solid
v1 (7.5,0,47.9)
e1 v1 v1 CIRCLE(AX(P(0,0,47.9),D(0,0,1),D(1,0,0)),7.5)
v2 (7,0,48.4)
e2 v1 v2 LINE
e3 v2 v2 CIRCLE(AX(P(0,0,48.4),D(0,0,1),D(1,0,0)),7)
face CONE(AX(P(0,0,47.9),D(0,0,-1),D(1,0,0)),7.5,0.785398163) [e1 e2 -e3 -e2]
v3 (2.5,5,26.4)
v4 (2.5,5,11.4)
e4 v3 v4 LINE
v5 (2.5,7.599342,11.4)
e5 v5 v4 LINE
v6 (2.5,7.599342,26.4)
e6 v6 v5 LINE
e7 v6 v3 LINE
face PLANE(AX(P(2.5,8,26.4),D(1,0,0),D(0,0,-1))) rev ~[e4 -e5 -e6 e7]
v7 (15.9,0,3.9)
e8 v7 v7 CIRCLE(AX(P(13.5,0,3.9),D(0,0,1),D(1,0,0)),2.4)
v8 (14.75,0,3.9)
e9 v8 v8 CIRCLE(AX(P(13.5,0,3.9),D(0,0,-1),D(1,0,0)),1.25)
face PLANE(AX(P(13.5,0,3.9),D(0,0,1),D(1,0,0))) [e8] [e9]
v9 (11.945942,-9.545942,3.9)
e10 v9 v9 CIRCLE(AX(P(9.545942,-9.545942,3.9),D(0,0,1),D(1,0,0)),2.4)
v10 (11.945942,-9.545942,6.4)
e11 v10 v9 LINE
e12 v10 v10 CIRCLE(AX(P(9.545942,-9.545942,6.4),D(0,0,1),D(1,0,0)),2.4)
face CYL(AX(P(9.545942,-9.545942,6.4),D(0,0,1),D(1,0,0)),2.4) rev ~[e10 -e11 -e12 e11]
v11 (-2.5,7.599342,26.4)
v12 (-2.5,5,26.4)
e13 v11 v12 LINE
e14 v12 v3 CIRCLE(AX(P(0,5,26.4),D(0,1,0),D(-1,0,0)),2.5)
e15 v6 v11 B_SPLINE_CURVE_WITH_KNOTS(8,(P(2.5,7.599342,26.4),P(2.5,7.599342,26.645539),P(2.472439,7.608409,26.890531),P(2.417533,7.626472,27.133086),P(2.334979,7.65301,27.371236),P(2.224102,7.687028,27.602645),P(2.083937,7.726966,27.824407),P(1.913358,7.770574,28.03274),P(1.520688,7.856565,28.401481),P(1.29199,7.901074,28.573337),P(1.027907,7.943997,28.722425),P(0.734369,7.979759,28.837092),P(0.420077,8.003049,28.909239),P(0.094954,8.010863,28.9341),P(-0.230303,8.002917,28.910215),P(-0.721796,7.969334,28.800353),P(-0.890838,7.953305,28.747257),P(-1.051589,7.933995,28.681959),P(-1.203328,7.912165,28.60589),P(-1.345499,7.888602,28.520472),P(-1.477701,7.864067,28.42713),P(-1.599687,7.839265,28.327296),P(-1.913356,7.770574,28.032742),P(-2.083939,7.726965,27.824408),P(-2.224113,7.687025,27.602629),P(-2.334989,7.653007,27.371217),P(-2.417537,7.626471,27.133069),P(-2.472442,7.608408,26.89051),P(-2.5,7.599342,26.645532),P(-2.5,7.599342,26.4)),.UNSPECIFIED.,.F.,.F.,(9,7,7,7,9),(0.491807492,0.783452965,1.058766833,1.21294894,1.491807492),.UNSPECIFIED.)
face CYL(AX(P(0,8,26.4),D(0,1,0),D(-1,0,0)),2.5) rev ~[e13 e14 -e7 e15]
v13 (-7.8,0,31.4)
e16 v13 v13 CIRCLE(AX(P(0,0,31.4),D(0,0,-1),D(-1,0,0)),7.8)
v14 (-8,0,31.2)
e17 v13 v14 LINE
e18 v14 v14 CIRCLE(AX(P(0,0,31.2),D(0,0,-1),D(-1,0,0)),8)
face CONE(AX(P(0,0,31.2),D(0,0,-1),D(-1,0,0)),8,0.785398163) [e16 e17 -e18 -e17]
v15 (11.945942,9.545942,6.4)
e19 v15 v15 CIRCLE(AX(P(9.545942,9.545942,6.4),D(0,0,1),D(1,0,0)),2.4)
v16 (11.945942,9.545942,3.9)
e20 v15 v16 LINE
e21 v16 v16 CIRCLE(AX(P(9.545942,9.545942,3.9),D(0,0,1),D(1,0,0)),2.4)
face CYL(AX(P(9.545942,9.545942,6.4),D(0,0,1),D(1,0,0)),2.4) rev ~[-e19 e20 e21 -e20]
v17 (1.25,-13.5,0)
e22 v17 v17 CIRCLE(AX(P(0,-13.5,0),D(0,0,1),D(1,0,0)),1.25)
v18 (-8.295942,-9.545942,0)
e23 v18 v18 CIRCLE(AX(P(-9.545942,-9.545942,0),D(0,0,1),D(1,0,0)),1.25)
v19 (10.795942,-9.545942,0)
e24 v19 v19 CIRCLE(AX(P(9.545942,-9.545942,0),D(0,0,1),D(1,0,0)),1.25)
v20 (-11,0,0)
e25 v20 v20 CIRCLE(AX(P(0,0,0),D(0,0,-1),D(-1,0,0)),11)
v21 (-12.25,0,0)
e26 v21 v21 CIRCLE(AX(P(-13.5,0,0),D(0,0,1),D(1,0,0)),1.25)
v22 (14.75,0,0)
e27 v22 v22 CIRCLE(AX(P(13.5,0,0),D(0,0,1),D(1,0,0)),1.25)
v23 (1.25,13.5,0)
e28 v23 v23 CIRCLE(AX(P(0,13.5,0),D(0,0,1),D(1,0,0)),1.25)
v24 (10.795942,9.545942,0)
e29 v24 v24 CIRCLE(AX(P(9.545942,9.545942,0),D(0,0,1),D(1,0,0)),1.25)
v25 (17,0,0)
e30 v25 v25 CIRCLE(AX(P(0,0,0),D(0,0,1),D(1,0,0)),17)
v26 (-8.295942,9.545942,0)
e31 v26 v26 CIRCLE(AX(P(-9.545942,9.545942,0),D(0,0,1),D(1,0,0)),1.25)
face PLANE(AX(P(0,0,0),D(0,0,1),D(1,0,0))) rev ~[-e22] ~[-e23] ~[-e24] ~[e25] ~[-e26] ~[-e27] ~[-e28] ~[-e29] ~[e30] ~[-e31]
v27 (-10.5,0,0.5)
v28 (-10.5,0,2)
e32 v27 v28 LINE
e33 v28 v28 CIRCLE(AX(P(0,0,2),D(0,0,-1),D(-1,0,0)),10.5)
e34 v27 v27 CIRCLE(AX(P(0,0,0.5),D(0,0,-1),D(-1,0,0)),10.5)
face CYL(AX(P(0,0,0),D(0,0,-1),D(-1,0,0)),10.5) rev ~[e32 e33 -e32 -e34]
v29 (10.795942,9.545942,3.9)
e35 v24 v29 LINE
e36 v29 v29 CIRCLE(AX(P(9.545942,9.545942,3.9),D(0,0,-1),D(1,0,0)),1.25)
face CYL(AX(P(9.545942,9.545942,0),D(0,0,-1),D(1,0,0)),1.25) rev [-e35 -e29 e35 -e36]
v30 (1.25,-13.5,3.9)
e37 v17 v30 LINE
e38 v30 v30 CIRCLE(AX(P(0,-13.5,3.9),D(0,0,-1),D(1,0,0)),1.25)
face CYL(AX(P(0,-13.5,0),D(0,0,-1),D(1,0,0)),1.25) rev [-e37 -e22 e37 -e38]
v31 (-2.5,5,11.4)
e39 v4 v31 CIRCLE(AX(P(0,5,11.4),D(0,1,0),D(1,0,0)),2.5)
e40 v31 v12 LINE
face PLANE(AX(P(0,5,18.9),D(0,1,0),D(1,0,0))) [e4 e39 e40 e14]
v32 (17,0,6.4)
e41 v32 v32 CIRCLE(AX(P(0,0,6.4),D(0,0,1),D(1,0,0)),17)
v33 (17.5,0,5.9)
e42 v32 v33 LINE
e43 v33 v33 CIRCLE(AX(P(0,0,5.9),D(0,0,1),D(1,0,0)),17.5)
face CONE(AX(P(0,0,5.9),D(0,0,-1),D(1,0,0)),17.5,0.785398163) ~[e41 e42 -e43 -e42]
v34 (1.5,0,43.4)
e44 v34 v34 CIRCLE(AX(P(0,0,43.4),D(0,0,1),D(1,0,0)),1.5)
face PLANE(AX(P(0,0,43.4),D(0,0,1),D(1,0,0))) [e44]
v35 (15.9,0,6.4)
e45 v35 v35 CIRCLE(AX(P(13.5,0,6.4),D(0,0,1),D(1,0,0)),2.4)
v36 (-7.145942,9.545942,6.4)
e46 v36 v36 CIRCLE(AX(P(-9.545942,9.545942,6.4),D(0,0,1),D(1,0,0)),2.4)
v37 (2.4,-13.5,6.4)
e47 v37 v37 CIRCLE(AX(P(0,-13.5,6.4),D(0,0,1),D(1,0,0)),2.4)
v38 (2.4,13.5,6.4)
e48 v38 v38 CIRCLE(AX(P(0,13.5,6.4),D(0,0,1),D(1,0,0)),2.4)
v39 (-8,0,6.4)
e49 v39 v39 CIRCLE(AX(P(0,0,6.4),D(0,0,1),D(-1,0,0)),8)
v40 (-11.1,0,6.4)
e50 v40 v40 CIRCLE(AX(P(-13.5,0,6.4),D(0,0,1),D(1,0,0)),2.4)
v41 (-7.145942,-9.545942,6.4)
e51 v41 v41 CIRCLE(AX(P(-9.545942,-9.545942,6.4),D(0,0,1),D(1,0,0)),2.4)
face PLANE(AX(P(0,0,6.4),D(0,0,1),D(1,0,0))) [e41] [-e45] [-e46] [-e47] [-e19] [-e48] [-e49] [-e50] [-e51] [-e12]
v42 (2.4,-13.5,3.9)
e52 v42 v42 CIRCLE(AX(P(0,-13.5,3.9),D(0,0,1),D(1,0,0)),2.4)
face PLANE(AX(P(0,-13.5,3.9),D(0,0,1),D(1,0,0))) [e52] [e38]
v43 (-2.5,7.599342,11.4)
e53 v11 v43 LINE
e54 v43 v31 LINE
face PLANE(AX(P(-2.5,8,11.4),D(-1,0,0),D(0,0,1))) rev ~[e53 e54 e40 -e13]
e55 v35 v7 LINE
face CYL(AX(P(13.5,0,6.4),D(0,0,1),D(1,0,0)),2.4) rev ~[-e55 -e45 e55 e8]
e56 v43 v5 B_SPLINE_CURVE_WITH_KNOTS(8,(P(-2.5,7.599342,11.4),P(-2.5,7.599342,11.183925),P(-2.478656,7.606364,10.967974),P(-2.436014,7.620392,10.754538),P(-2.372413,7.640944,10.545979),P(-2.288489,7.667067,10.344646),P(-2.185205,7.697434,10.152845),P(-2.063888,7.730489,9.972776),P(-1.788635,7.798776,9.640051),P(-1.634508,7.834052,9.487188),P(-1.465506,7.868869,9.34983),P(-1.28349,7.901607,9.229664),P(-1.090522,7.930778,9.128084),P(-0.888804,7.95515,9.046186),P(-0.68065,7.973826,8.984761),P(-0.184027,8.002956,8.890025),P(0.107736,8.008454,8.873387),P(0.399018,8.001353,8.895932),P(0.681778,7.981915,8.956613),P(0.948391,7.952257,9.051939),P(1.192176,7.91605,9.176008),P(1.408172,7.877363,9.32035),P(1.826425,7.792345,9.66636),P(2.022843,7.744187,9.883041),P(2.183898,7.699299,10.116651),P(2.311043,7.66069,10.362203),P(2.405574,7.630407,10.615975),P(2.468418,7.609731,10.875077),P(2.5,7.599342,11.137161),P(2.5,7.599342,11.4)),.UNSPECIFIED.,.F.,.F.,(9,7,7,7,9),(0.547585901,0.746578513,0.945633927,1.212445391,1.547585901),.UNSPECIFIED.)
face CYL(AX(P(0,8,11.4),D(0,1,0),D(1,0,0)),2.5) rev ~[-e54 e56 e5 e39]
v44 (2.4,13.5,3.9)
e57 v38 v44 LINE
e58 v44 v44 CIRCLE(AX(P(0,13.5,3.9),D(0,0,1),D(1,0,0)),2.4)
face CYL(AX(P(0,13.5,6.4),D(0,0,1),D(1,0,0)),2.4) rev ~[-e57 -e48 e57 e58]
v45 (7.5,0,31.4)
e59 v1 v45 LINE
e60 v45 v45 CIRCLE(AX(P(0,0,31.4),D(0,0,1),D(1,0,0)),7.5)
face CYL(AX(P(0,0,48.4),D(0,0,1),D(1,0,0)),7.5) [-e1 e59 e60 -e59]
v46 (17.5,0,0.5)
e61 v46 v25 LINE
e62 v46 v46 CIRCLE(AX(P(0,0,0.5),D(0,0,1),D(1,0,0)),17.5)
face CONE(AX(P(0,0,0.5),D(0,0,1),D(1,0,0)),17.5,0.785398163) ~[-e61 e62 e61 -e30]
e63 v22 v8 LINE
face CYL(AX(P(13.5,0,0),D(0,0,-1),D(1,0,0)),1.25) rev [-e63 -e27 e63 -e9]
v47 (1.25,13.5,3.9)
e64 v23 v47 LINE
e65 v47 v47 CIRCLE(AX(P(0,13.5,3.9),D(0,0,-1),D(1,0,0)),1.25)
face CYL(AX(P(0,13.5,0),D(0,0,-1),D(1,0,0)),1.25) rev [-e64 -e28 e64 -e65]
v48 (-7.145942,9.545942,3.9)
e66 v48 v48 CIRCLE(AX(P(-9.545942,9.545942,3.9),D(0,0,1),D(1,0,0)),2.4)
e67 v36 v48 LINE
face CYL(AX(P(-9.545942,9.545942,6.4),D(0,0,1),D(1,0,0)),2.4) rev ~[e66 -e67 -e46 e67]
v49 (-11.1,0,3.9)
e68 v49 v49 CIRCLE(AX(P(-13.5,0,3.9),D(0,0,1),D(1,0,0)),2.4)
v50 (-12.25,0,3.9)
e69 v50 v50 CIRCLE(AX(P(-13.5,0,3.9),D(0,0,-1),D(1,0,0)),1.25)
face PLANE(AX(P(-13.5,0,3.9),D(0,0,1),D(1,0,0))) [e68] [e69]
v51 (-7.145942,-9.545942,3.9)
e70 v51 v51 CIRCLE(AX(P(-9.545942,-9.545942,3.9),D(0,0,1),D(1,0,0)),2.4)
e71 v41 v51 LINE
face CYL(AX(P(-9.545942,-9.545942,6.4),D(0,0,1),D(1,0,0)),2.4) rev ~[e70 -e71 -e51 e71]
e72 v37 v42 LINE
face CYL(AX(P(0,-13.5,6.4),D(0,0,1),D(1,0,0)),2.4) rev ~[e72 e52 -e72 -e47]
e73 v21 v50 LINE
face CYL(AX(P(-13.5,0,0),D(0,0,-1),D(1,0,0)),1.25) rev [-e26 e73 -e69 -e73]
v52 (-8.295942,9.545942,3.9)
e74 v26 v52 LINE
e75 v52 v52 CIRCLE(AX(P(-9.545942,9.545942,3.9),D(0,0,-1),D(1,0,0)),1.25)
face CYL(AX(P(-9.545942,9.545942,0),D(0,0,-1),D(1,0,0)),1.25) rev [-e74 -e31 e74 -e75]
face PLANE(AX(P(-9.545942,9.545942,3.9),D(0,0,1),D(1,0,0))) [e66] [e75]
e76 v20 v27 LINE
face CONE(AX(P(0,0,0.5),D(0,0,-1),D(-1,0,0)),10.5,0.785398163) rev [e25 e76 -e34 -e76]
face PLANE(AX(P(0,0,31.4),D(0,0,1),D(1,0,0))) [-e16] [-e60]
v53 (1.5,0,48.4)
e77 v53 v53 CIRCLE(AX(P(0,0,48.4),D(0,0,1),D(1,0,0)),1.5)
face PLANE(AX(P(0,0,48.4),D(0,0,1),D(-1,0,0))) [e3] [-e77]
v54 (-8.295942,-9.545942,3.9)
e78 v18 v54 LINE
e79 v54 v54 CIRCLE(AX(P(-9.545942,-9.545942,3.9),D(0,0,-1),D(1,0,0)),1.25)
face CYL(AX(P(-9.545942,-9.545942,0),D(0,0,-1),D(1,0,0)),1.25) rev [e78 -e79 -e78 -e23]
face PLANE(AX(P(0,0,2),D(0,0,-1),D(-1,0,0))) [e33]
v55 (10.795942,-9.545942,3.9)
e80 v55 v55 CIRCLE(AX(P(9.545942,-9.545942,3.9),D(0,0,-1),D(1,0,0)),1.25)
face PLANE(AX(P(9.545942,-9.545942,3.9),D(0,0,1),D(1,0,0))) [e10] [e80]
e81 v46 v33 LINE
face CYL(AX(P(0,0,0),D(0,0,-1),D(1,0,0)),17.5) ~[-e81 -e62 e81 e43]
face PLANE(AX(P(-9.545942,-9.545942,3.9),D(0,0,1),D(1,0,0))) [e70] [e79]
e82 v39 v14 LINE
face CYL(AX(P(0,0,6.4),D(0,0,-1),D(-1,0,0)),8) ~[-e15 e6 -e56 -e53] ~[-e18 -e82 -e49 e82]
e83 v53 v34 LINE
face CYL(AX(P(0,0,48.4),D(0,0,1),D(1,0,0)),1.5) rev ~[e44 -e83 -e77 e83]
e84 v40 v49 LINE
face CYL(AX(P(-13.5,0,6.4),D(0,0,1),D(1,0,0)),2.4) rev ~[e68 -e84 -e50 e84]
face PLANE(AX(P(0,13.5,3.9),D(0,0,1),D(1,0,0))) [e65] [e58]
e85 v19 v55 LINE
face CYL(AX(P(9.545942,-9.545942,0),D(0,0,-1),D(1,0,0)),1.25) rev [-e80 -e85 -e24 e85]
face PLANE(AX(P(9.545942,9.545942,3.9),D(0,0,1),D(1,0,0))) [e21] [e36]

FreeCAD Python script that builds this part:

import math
import FreeCAD as App
import Part
import Sketcher
Q = App.Units.Quantity


def edges_at(feature, points):
    """Names of the edges that pass closest to the given points."""
    edges = feature.Shape.Edges
    near = lambda p: min(range(len(edges)), key=lambda i: edges[i].distToShape(Part.Vertex(*p))[0])
    return sorted({f"Edge{near(p) + 1}" for p in points})


def add_polygon(sketch, points):
    """Adds a closed chain of lines whose ends are joined by coincident constraints."""
    first, n = sketch.GeometryCount, len(points)
    for a, b in zip(points, points[1:] + points[:1]):
        sketch.addGeometry(Part.LineSegment(App.Vector(*a, 0), App.Vector(*b, 0)), False)
    for i in range(n):
        sketch.addConstraint(Sketcher.Constraint("Coincident", first + i, 2, first + (i + 1) % n, 1))

doc = App.newDocument("Part")
params = doc.addObject("Spreadsheet::Sheet", "Params")
for row, (alias, value) in enumerate([
    ("sketch1_diameter", "35 mm"),
    ("sketch1_diameter2", "2.5 mm"),
    ("pad1_length", "6.4 mm"),
    ("sketch2_diameter", "16 mm"),
    ("pad2_length", "42 mm"),
    ("sketch3_radius", "2.5 mm"),
    ("sketch3_height", "15 mm"),
    ("pocket1_length", "3 mm"),
    ("sketch4_diameter", "3 mm"),
    ("pocket2_length", "5 mm"),
    ("sketch5_diameter", "15 mm"),
    ("pocket3_length", "17 mm"),
    ("chamfer_size", "0.5 mm"),
    ("chamfer2_size", "0.2 mm"),
    ("sketch6_diameter", "4.8 mm"),
    ("pocket4_length", "2.5 mm"),
    ("chamfer3_size", "0.5 mm"),
    ("sketch7_diameter", "21 mm"),
    ("pocket5_length", "2 mm"),
    ("chamfer4_size", "0.5 mm"),
], start=1):
    params.set(f"A{row}", alias)
    params.set(f"B{row}", "=" + value)
    params.setAlias(f"B{row}", alias)

body = doc.addObject("PartDesign::Body", "Body")

# Sketch on XY plane
sketch1 = body.newObject("Sketcher::SketchObject", "Sketch")
sketch1.AttachmentSupport = (doc.getObject("XY_Plane"), [""])
sketch1.MapMode = "FlatFace"
sketch1.addGeometry(Part.Circle(App.Vector(0, 0, 0), App.Vector(0, 0, 1), 17.5), False)
sketch1.addGeometry(Part.Circle(App.Vector(-9.545942, -9.545942, 0), App.Vector(0, 0, 1), 1.25), False)
sketch1.addGeometry(Part.Circle(App.Vector(0, -13.5, 0), App.Vector(0, 0, 1), 1.25), False)
sketch1.addGeometry(Part.Circle(App.Vector(9.545942, -9.545942, 0), App.Vector(0, 0, 1), 1.25), False)
sketch1.addGeometry(Part.Circle(App.Vector(-13.5, 0, 0), App.Vector(0, 0, 1), 1.25), False)
sketch1.addGeometry(Part.Circle(App.Vector(-9.545942, 9.545942, 0), App.Vector(0, 0, 1), 1.25), False)
sketch1.addGeometry(Part.Circle(App.Vector(13.5, 0, 0), App.Vector(0, 0, 1), 1.25), False)
sketch1.addGeometry(Part.Circle(App.Vector(0, 13.5, 0), App.Vector(0, 0, 1), 1.25), False)
sketch1.addGeometry(Part.Circle(App.Vector(9.545942, 9.545942, 0), App.Vector(0, 0, 1), 1.25), False)
sketch1.addConstraint(Sketcher.Constraint("Coincident", 0, 3, -1, 1))
sketch1.addConstraint(Sketcher.Constraint("Equal", 1, 2))
sketch1.addConstraint(Sketcher.Constraint("Equal", 2, 3))
sketch1.addConstraint(Sketcher.Constraint("Equal", 3, 4))
sketch1.addConstraint(Sketcher.Constraint("Equal", 4, 5))
sketch1.addConstraint(Sketcher.Constraint("Equal", 5, 6))
sketch1.addConstraint(Sketcher.Constraint("Equal", 6, 7))
sketch1.addConstraint(Sketcher.Constraint("Equal", 7, 8))
sketch1.addConstraint(Sketcher.Constraint("Symmetric", 3, 3, 5, 3, -1, 1))
sketch1.addConstraint(Sketcher.Constraint("Symmetric", 4, 3, 6, 3, -1, 1))
sketch1.addConstraint(Sketcher.Constraint("Symmetric", 2, 3, 7, 3, -1, 1))
sketch1.addConstraint(Sketcher.Constraint("Symmetric", 1, 3, 8, 3, -1, 1))
sketch1.addConstraint(Sketcher.Constraint("Symmetric", 1, 3, 3, 3, -2))
sketch1.addConstraint(Sketcher.Constraint("PointOnObject", 2, 3, -2))
sketch1.addConstraint(Sketcher.Constraint("PointOnObject", 4, 3, -1))
sketch1.addConstraint(Sketcher.Constraint("Diameter", 0, Q("35 mm")))
sketch1.addConstraint(Sketcher.Constraint("Diameter", 1, Q("2.5 mm")))
sketch1.addConstraint(Sketcher.Constraint("DistanceY", 2, 3, -1, 1, Q("13.5 mm")))
sketch1.addConstraint(Sketcher.Constraint("DistanceX", 4, 3, -1, 1, Q("13.5 mm")))
sketch1.addConstraint(Sketcher.Constraint("DistanceX", 1, 3, -1, 1, Q("9.545942 mm")))
sketch1.addConstraint(Sketcher.Constraint("DistanceY", 1, 3, -1, 1, Q("9.545942 mm")))
sketch1.setExpression("Constraints[15]", "Params.sketch1_diameter")
sketch1.setExpression("Constraints[16]", "Params.sketch1_diameter2")
pad1 = body.newObject("PartDesign::Pad", "Pad")
pad1.Profile = sketch1
pad1.setExpression("Length", "Params.pad1_length")

# Sketch on XY plane
sketch2 = body.newObject("Sketcher::SketchObject", "Sketch001")
sketch2.AttachmentSupport = (doc.getObject("XY_Plane"), [""])
sketch2.MapMode = "FlatFace"
sketch2.AttachmentOffset = App.Placement(App.Vector(0, 0, 6.4), App.Rotation())
sketch2.addGeometry(Part.Circle(App.Vector(0, 0, 0), App.Vector(0, 0, 1), 8), False)
sketch2.addConstraint(Sketcher.Constraint("Coincident", 0, 3, -1, 1))
sketch2.addConstraint(Sketcher.Constraint("Diameter", 0, Q("16 mm")))
sketch2.setExpression("Constraints[1]", "Params.sketch2_diameter")
pad2 = body.newObject("PartDesign::Pad", "Pad001")
pad2.Profile = sketch2
pad2.setExpression("Length", "Params.pad2_length")

# Sketch on XZ plane
sketch3 = body.newObject("Sketcher::SketchObject", "Sketch002")
sketch3.AttachmentSupport = (doc.getObject("XZ_Plane"), [""])
sketch3.MapMode = "FlatFace"
sketch3.AttachmentOffset = App.Placement(App.Vector(0, 0, -8), App.Rotation())
sketch3.addGeometry(Part.LineSegment(App.Vector(-2.5, 11.4, 0), App.Vector(-2.5, 26.4, 0)), False)
sketch3.addGeometry(Part.ArcOfCircle(Part.Circle(App.Vector(0, 26.4, 0), App.Vector(0, 0, 1), 2.5), math.radians(0), math.radians(180)), False)
sketch3.addGeometry(Part.LineSegment(App.Vector(2.5, 26.4, 0), App.Vector(2.5, 11.4, 0)), False)
sketch3.addGeometry(Part.ArcOfCircle(Part.Circle(App.Vector(0, 11.4, 0), App.Vector(0, 0, 1), 2.5), math.radians(180), math.radians(360)), False)
sketch3.addConstraint(Sketcher.Constraint("Tangent", 0, 2, 1, 2))
sketch3.addConstraint(Sketcher.Constraint("Tangent", 1, 1, 2, 1))
sketch3.addConstraint(Sketcher.Constraint("Tangent", 2, 2, 3, 2))
sketch3.addConstraint(Sketcher.Constraint("Tangent", 3, 1, 0, 1))
sketch3.addConstraint(Sketcher.Constraint("Vertical", 0))
sketch3.addConstraint(Sketcher.Constraint("Vertical", 2))
sketch3.addConstraint(Sketcher.Constraint("PointOnObject", 1, 3, -2))
sketch3.addConstraint(Sketcher.Constraint("Radius", 1, Q("2.5 mm")))
sketch3.addConstraint(Sketcher.Constraint("DistanceY", 0, 1, 0, 2, Q("15 mm")))
sketch3.addConstraint(Sketcher.Constraint("DistanceY", -1, 1, 1, 3, Q("26.4 mm")))
sketch3.setExpression("Constraints[7]", "Params.sketch3_radius")
sketch3.setExpression("Constraints[8]", "Params.sketch3_height")
pocket1 = body.newObject("PartDesign::Pocket", "Pocket")
pocket1.Profile = sketch3
pocket1.setExpression("Length", "Params.pocket1_length")
pocket1.Reversed = True

# Sketch on XY plane
sketch4 = body.newObject("Sketcher::SketchObject", "Sketch003")
sketch4.AttachmentSupport = (doc.getObject("XY_Plane"), [""])
sketch4.MapMode = "FlatFace"
sketch4.AttachmentOffset = App.Placement(App.Vector(0, 0, 48.4), App.Rotation())
sketch4.addGeometry(Part.Circle(App.Vector(0, 0, 0), App.Vector(0, 0, 1), 1.5), False)
sketch4.addConstraint(Sketcher.Constraint("Coincident", 0, 3, -1, 1))
sketch4.addConstraint(Sketcher.Constraint("Diameter", 0, Q("3 mm")))
sketch4.setExpression("Constraints[1]", "Params.sketch4_diameter")
pocket2 = body.newObject("PartDesign::Pocket", "Pocket001")
pocket2.Profile = sketch4
pocket2.setExpression("Length", "Params.pocket2_length")

# Sketch on XY plane
sketch5 = body.newObject("Sketcher::SketchObject", "Sketch004")
sketch5.AttachmentSupport = (doc.getObject("XY_Plane"), [""])
sketch5.MapMode = "FlatFace"
sketch5.AttachmentOffset = App.Placement(App.Vector(0, 0, 48.4), App.Rotation())
add_polygon(sketch5, [(-25.423, 25.423), (-25.423, -25.423), (25.423, -25.423), (25.423, 25.423)])  # lines 0-3
sketch5.addGeometry(Part.Circle(App.Vector(0, 0, 0), App.Vector(0, 0, 1), 7.5), False)  # 4
sketch5.addConstraint(Sketcher.Constraint("Vertical", 0))
sketch5.addConstraint(Sketcher.Constraint("Horizontal", 1))
sketch5.addConstraint(Sketcher.Constraint("Vertical", 2))
sketch5.addConstraint(Sketcher.Constraint("Horizontal", 3))
sketch5.addConstraint(Sketcher.Constraint("Coincident", 4, 3, -1, 1))
sketch5.addConstraint(Sketcher.Constraint("Symmetric", 0, 2, 2, 2, -1, 1))
sketch5.addConstraint(Sketcher.Constraint("Equal", 3, 0))
sketch5.addConstraint(Sketcher.Constraint("Diameter", 4, Q("15 mm")))
sketch5.addConstraint(Sketcher.Constraint("DistanceX", 1, 1, 1, 2, Q("50.846 mm")))
sketch5.setExpression("Constraints[11]", "Params.sketch5_diameter")
pocket3 = body.newObject("PartDesign::Pocket", "Pocket002")
pocket3.Profile = sketch5
pocket3.setExpression("Length", "Params.pocket3_length")
doc.recompute()

chamfer = body.newObject("PartDesign::Chamfer", "Chamfer")
chamfer.Base = (pocket3, edges_at(pocket3, [(-7.5, 0, 48.4)]))
chamfer.setExpression("Size", "Params.chamfer_size")
doc.recompute()

chamfer2 = body.newObject("PartDesign::Chamfer", "Chamfer001")
chamfer2.Base = (chamfer, edges_at(chamfer, [(8, 0, 31.4)]))
chamfer2.setExpression("Size", "Params.chamfer2_size")

# Sketch on XY plane
sketch6 = body.newObject("Sketcher::SketchObject", "Sketch005")
sketch6.AttachmentSupport = (doc.getObject("XY_Plane"), [""])
sketch6.MapMode = "FlatFace"
sketch6.AttachmentOffset = App.Placement(App.Vector(0, 0, 6.4), App.Rotation())
sketch6.addGeometry(Part.Circle(App.Vector(-9.545942, 9.545942, 0), App.Vector(0, 0, 1), 2.4), False)
sketch6.addGeometry(Part.Circle(App.Vector(0, 13.5, 0), App.Vector(0, 0, 1), 2.4), False)
sketch6.addGeometry(Part.Circle(App.Vector(9.545942, 9.545942, 0), App.Vector(0, 0, 1), 2.4), False)
sketch6.addGeometry(Part.Circle(App.Vector(13.5, 0, 0), App.Vector(0, 0, 1), 2.4), False)
sketch6.addGeometry(Part.Circle(App.Vector(9.545942, -9.545942, 0), App.Vector(0, 0, 1), 2.4), False)
sketch6.addGeometry(Part.Circle(App.Vector(0, -13.5, 0), App.Vector(0, 0, 1), 2.4), False)
sketch6.addGeometry(Part.Circle(App.Vector(-9.545942, -9.545942, 0), App.Vector(0, 0, 1), 2.4), False)
sketch6.addGeometry(Part.Circle(App.Vector(-13.5, 0, 0), App.Vector(0, 0, 1), 2.4), False)
sketch6.addConstraint(Sketcher.Constraint("Equal", 0, 1))
sketch6.addConstraint(Sketcher.Constraint("Equal", 1, 2))
sketch6.addConstraint(Sketcher.Constraint("Equal", 2, 3))
sketch6.addConstraint(Sketcher.Constraint("Equal", 3, 4))
sketch6.addConstraint(Sketcher.Constraint("Equal", 4, 5))
sketch6.addConstraint(Sketcher.Constraint("Equal", 5, 6))
sketch6.addConstraint(Sketcher.Constraint("Equal", 6, 7))
sketch6.addConstraint(Sketcher.Constraint("Symmetric", 0, 3, 4, 3, -1, 1))
sketch6.addConstraint(Sketcher.Constraint("Symmetric", 1, 3, 5, 3, -1, 1))
sketch6.addConstraint(Sketcher.Constraint("Symmetric", 2, 3, 6, 3, -1, 1))
sketch6.addConstraint(Sketcher.Constraint("Symmetric", 3, 3, 7, 3, -1, 1))
sketch6.addConstraint(Sketcher.Constraint("Symmetric", 0, 3, 2, 3, -2))
sketch6.addConstraint(Sketcher.Constraint("PointOnObject", 1, 3, -2))
sketch6.addConstraint(Sketcher.Constraint("PointOnObject", 3, 3, -1))
sketch6.addConstraint(Sketcher.Constraint("Diameter", 0, Q("4.8 mm")))
sketch6.addConstraint(Sketcher.Constraint("DistanceY", 5, 3, 1, 3, Q("27 mm")))
sketch6.addConstraint(Sketcher.Constraint("DistanceX", -1, 1, 3, 3, Q("13.5 mm")))
sketch6.addConstraint(Sketcher.Constraint("DistanceX", 0, 3, -1, 1, Q("9.545942 mm")))
sketch6.addConstraint(Sketcher.Constraint("DistanceY", -1, 1, 0, 3, Q("9.545942 mm")))
sketch6.setExpression("Constraints[14]", "Params.sketch6_diameter")
pocket4 = body.newObject("PartDesign::Pocket", "Pocket003")
pocket4.Profile = sketch6
pocket4.setExpression("Length", "Params.pocket4_length")
doc.recompute()

chamfer3 = body.newObject("PartDesign::Chamfer", "Chamfer002")
chamfer3.Base = (pocket4, edges_at(pocket4, [(-17.5, 0, 0), (-17.5, 0, 6.4)]))
chamfer3.setExpression("Size", "Params.chamfer3_size")

# Sketch on XY plane
sketch7 = body.newObject("Sketcher::SketchObject", "Sketch006")
sketch7.AttachmentSupport = (doc.getObject("XY_Plane"), [""])
sketch7.MapMode = "FlatFace"
sketch7.addGeometry(Part.Circle(App.Vector(0, 0, 0), App.Vector(0, 0, 1), 10.5), False)
sketch7.addConstraint(Sketcher.Constraint("Coincident", 0, 3, -1, 1))
sketch7.addConstraint(Sketcher.Constraint("Diameter", 0, Q("21 mm")))
sketch7.setExpression("Constraints[1]", "Params.sketch7_diameter")
pocket5 = body.newObject("PartDesign::Pocket", "Pocket004")
pocket5.Profile = sketch7
pocket5.setExpression("Length", "Params.pocket5_length")
pocket5.Reversed = True
doc.recompute()

chamfer4 = body.newObject("PartDesign::Chamfer", "Chamfer003")
chamfer4.Base = (pocket5, edges_at(pocket5, [(10.5, 0, 0)]))
chamfer4.setExpression("Size", "Params.chamfer4_size")

doc.recompute()
